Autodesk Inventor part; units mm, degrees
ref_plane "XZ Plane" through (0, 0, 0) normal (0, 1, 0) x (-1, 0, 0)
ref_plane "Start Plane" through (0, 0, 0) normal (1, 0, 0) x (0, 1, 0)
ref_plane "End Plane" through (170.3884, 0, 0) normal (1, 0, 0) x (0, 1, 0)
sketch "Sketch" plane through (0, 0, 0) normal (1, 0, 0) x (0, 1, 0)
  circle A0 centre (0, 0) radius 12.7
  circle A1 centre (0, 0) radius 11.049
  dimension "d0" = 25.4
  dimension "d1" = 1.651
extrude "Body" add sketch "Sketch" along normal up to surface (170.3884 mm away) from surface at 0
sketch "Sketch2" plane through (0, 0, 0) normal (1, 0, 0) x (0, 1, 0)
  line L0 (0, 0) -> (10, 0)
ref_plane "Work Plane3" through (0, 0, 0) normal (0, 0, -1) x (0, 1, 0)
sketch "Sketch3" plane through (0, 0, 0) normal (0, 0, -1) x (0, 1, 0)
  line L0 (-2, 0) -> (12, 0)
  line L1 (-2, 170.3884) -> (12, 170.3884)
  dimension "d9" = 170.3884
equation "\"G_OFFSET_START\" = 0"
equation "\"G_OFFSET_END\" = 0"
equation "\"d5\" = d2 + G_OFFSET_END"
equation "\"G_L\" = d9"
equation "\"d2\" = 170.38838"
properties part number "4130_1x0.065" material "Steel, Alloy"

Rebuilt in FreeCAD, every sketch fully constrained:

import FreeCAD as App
import Part
import Sketcher
from FreeCAD import Vector
Q = App.Units.Quantity

doc = App.newDocument("Part")
body = doc.addObject("PartDesign::Body", "Body")

# Sketch on YZ plane
sketch1 = body.newObject("Sketcher::SketchObject", "Sketch")
sketch1.AttachmentSupport = (doc.getObject("YZ_Plane"), [""])
sketch1.MapMode = "FlatFace"
sketch1.addGeometry([
    Part.Circle(Vector(0, 0, 0), Vector(0, 0, 1), 13),
    Part.Circle(Vector(0, 0, 0), Vector(0, 0, 1), 11),
], False)
sketch1.addConstraint([
    Sketcher.Constraint("Coincident", 0, 3, -1, 1),
    Sketcher.Constraint("Coincident", 1, 3, -1, 1),
    Sketcher.Constraint("Diameter", 0, Q("1 in")),
    Sketcher.Constraint("Diameter", 1, Q("0.87 in")),
])
pad1 = body.newObject("PartDesign::Pad", "Pad")
pad1.Profile = sketch1
pad1.Length = Q("6.7082047 in")

doc.recompute()
